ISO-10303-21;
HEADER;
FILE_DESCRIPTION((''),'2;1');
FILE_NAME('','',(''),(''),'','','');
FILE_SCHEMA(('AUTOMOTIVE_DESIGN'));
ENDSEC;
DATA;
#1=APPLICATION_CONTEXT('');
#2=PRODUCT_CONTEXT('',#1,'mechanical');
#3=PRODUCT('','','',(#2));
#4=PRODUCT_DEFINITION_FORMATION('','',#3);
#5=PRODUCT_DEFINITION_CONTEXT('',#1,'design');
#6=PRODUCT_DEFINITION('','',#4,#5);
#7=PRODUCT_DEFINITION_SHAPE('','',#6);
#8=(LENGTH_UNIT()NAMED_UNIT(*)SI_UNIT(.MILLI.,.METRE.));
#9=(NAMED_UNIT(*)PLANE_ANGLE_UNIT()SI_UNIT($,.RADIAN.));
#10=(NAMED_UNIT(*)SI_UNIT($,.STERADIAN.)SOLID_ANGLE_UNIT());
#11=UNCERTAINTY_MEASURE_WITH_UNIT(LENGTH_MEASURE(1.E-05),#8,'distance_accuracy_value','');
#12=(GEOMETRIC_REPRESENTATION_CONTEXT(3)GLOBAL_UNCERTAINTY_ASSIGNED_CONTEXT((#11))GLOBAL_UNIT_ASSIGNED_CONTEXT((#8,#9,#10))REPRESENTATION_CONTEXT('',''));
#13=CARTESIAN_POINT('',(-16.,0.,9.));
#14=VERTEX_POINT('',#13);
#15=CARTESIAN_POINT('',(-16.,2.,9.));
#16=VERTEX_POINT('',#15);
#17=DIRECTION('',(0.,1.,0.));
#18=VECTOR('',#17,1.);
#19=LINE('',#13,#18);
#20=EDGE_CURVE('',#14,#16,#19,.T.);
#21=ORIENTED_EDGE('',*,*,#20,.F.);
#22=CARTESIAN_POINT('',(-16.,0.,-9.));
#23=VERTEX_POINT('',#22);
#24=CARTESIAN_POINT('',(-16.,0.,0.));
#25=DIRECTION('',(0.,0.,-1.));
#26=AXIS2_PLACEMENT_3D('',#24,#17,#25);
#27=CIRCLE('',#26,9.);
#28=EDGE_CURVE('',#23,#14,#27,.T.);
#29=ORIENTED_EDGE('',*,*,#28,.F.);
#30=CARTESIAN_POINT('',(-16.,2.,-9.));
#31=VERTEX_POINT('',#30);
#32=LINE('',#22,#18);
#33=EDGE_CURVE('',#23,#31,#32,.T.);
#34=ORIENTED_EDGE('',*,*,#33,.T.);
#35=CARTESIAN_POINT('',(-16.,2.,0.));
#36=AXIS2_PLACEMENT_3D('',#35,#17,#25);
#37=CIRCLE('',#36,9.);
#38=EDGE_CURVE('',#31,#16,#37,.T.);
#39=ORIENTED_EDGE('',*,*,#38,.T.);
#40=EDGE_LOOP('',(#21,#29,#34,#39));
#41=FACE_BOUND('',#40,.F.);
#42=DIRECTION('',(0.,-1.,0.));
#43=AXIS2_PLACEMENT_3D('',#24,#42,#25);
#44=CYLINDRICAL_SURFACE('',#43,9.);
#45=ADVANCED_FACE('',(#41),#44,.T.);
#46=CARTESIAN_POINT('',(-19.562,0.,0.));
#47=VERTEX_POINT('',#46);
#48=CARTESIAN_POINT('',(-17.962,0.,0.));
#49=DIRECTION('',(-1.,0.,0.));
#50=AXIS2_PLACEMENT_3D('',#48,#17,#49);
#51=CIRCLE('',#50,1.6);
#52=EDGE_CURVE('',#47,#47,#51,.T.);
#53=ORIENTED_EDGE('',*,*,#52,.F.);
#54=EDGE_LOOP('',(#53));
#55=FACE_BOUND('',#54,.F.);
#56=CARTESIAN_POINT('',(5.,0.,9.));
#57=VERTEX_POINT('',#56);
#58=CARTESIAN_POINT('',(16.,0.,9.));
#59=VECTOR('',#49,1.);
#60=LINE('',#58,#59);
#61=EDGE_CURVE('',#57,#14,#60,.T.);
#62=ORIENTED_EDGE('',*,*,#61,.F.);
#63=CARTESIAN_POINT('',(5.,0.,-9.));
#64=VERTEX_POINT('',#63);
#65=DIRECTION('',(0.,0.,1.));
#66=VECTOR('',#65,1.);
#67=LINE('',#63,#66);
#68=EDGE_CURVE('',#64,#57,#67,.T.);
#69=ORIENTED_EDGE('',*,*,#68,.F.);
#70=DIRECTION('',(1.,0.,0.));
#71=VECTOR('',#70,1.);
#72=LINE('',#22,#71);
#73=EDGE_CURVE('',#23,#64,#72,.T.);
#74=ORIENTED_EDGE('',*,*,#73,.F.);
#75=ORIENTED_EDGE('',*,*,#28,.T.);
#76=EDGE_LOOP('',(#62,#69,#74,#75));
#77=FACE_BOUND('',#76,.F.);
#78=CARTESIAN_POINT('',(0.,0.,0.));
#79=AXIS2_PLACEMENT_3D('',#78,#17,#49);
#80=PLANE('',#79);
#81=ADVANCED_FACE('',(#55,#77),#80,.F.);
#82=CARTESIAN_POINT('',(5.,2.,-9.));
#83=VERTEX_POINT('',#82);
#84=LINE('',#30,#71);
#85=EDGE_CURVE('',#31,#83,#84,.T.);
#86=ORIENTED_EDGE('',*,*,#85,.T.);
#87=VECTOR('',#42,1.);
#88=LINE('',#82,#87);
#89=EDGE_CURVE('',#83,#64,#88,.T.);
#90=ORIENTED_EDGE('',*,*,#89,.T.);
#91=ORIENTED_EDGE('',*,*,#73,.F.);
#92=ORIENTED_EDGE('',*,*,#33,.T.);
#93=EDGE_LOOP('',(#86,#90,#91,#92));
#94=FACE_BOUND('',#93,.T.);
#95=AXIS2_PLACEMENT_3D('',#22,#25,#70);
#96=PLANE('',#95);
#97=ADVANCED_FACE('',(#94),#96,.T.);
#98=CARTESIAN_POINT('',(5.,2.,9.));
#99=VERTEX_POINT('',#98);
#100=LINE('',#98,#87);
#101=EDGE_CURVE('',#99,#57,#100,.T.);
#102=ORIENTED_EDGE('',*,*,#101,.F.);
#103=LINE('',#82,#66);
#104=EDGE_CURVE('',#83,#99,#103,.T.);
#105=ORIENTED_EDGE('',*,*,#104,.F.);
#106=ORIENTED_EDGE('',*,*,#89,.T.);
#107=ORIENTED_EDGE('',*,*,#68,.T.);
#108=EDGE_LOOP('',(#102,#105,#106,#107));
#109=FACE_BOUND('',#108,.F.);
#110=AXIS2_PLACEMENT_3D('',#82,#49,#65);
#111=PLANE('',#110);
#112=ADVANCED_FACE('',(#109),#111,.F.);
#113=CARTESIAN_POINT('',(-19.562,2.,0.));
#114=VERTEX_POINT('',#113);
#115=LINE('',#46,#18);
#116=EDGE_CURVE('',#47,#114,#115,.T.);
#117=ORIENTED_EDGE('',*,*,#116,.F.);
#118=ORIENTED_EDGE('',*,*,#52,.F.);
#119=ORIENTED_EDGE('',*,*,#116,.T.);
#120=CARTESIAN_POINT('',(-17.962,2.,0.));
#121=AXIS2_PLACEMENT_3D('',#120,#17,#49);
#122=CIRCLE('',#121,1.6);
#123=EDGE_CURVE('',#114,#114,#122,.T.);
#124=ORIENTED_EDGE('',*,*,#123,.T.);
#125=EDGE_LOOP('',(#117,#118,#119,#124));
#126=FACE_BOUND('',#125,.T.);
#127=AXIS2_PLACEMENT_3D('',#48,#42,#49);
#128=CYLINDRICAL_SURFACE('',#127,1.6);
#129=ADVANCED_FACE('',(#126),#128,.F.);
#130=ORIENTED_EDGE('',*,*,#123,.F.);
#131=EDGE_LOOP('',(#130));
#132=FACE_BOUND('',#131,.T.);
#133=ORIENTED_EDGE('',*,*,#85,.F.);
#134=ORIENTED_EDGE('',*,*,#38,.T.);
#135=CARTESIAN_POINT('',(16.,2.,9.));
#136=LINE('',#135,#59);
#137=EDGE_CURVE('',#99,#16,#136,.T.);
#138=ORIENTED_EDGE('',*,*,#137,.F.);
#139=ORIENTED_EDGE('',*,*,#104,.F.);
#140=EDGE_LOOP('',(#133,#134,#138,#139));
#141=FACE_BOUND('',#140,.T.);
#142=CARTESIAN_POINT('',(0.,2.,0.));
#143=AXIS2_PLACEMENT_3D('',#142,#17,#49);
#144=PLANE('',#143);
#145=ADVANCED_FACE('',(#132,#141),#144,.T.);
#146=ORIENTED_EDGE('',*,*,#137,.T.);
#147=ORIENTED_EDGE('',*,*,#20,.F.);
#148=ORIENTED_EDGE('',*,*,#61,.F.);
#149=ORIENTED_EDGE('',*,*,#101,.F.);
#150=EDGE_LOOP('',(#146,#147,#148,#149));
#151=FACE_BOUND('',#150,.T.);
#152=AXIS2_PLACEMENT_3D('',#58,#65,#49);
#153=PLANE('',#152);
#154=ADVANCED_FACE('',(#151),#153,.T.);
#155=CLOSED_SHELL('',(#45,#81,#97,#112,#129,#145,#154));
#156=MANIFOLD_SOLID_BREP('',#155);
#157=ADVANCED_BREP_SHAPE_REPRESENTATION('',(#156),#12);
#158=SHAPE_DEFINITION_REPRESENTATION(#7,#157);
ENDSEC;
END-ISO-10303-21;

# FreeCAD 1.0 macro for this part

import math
import FreeCAD as App
import Part
import Sketcher
Q = App.Units.Quantity


def add_polygon(sketch, points):
    """Adds a closed chain of lines whose ends are joined by coincident constraints."""
    first, n = sketch.GeometryCount, len(points)
    for a, b in zip(points, points[1:] + points[:1]):
        sketch.addGeometry(Part.LineSegment(App.Vector(*a, 0), App.Vector(*b, 0)), False)
    for i in range(n):
        sketch.addConstraint(Sketcher.Constraint("Coincident", first + i, 2, first + (i + 1) % n, 1))

doc = App.newDocument("Part")
params = doc.addObject("Spreadsheet::Sheet", "Params")
for row, (alias, value) in enumerate([
    ("sketch1_radius", "9 mm"),
    ("sketch1_diameter", "3.2 mm"),
    ("sketch1_width", "32 mm"),
    ("pad1_length", "2 mm"),
    ("sketch2_width", "11 mm"),
    ("sketch2_height", "18 mm"),
    ("pocket1_length", "2 mm"),
], start=1):
    params.set(f"A{row}", alias)
    params.set(f"B{row}", "=" + value)
    params.setAlias(f"B{row}", alias)

body = doc.addObject("PartDesign::Body", "Body")

sketch1 = doc.addObject("Sketcher::SketchObject", "Sketch")
body.addObject(sketch1)
sketch1.AttachmentSupport = (doc.XZ_Plane, [""])
sketch1.MapMode = "FlatFace"
sketch1.addGeometry([
    Part.LineSegment(App.Vector(-16, 9, 0), App.Vector(16, 9, 0)),
    Part.LineSegment(App.Vector(16, 9, 0), App.Vector(16, -9, 0)),
    Part.LineSegment(App.Vector(16, -9, 0), App.Vector(-16, -9, 0)),
    Part.ArcOfCircle(Part.Circle(App.Vector(-16, 0, 0), App.Vector(0, 0, 1), 9), math.radians(90), math.radians(270)),
    Part.Circle(App.Vector(-18, 0, 0), App.Vector(0, 0, 1), 1.6),
], False)
sketch1.addConstraint([
    Sketcher.Constraint("Coincident", 0, 2, 1, 1),
    Sketcher.Constraint("Coincident", 1, 2, 2, 1),
    Sketcher.Constraint("Tangent", 2, 2, 3, 2),
    Sketcher.Constraint("Tangent", 3, 1, 0, 1),
    Sketcher.Constraint("Horizontal", 0),
    Sketcher.Constraint("Vertical", 1),
    Sketcher.Constraint("Horizontal", 2),
    Sketcher.Constraint("Symmetric", 0, 2, 2, 2, -1, 1),
    Sketcher.Constraint("PointOnObject", 4, 3, -1),
    Sketcher.Constraint("Radius", 3, Q("9 mm")),
    Sketcher.Constraint("Diameter", 4, Q("3.2 mm")),
    Sketcher.Constraint("DistanceX", 0, 1, 0, 2, Q("32 mm")),
    Sketcher.Constraint("DistanceX", 4, 3, 3, 3, Q("1.962 mm")),
])
sketch1.setExpression("Constraints[9]", "Params.sketch1_radius")
sketch1.setExpression("Constraints[10]", "Params.sketch1_diameter")
sketch1.setExpression("Constraints[11]", "Params.sketch1_width")
pad1 = doc.addObject("PartDesign::Pad", "Pad")
body.addObject(pad1)
pad1.Profile = sketch1
pad1.setExpression("Length", "Params.pad1_length")
pad1.Reversed = True

sketch2 = doc.addObject("Sketcher::SketchObject", "Sketch001")
body.addObject(sketch2)
sketch2.AttachmentSupport = (doc.XZ_Plane, [""])
sketch2.MapMode = "FlatFace"
sketch2.AttachmentOffset = App.Placement(App.Vector(0, 0, -2), App.Rotation())
add_polygon(sketch2, [(16, 9), (16, -9), (5, -9), (5, 9)])
sketch2.addConstraint([
    Sketcher.Constraint("Vertical", 0),
    Sketcher.Constraint("Horizontal", 1),
    Sketcher.Constraint("Vertical", 2),
    Sketcher.Constraint("Horizontal", 3),
    Sketcher.Constraint("DistanceX", 1, 2, 1, 1, Q("11 mm")),
    Sketcher.Constraint("DistanceY", 0, 2, 0, 1, Q("18 mm")),
    Sketcher.Constraint("DistanceX", -1, 1, 0, 2, Q("16 mm")),
    Sketcher.Constraint("DistanceY", 0, 2, -1, 1, Q("9 mm")),
])
sketch2.setExpression("Constraints[8]", "Params.sketch2_width")
sketch2.setExpression("Constraints[9]", "Params.sketch2_height")
pocket1 = doc.addObject("PartDesign::Pocket", "Pocket")
body.addObject(pocket1)
pocket1.Profile = sketch2
pocket1.setExpression("Length", "Params.pocket1_length")
pocket1.Reversed = True

doc.recompute()
